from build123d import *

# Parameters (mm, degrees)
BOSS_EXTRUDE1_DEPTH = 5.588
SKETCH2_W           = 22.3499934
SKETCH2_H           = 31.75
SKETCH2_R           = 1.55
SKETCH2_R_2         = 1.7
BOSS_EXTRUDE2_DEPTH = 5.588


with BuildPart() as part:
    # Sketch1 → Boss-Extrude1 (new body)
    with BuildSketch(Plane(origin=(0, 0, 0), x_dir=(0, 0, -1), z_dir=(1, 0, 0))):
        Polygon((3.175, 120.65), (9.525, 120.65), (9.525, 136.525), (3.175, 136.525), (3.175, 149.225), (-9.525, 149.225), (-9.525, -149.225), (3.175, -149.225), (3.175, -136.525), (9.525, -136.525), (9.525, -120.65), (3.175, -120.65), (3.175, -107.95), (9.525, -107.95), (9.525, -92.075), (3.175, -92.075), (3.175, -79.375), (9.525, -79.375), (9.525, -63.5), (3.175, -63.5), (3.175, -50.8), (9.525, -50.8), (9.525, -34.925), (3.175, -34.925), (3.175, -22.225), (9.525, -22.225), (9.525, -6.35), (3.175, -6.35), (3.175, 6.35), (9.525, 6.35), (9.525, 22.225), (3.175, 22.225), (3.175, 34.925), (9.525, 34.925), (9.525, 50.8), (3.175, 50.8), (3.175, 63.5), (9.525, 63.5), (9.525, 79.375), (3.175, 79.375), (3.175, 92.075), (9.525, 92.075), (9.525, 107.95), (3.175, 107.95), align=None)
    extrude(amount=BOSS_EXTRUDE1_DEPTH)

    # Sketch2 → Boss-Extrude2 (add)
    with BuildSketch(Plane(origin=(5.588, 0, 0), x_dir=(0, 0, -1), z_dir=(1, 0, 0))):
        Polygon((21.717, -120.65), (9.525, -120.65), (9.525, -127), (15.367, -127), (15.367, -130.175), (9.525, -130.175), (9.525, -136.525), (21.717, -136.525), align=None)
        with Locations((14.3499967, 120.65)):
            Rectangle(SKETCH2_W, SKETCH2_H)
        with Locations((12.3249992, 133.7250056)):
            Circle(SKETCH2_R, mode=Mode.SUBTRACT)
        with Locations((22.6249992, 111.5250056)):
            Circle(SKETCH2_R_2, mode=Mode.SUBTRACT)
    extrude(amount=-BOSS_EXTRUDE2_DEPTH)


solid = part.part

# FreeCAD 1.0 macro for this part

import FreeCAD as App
import Part
import Sketcher
Q = App.Units.Quantity

doc = App.newDocument("Part")
body = doc.addObject("PartDesign::Body", "Body")

sketch1 = doc.addObject("Sketcher::SketchObject", "Sketch")
body.addObject(sketch1)
sketch1.AttachmentSupport = (doc.YZ_Plane, [""])
sketch1.MapMode = "FlatFace"
sketch1.addGeometry([
    Part.LineSegment(App.Vector(121, -3, 0), App.Vector(121, -10, 0)),
    Part.LineSegment(App.Vector(121, -10, 0), App.Vector(137, -10, 0)),
    Part.LineSegment(App.Vector(137, -10, 0), App.Vector(137, -3, 0)),
    Part.LineSegment(App.Vector(137, -3, 0), App.Vector(149, -3, 0)),
    Part.LineSegment(App.Vector(149, -3, 0), App.Vector(149, 10, 0)),
    Part.LineSegment(App.Vector(149, 10, 0), App.Vector(-149, 10, 0)),
    Part.LineSegment(App.Vector(-149, 10, 0), App.Vector(-149, -3, 0)),
    Part.LineSegment(App.Vector(-149, -3, 0), App.Vector(-137, -3, 0)),
    Part.LineSegment(App.Vector(-137, -3, 0), App.Vector(-137, -10, 0)),
    Part.LineSegment(App.Vector(-137, -10, 0), App.Vector(-121, -10, 0)),
    Part.LineSegment(App.Vector(-121, -10, 0), App.Vector(-121, -3, 0)),
    Part.LineSegment(App.Vector(-121, -3, 0), App.Vector(-108, -3, 0)),
    Part.LineSegment(App.Vector(-108, -3, 0), App.Vector(-108, -10, 0)),
    Part.LineSegment(App.Vector(-108, -10, 0), App.Vector(-92, -10, 0)),
    Part.LineSegment(App.Vector(-92, -10, 0), App.Vector(-92, -3, 0)),
    Part.LineSegment(App.Vector(-92, -3, 0), App.Vector(-79, -3, 0)),
    Part.LineSegment(App.Vector(-79, -3, 0), App.Vector(-79, -10, 0)),
    Part.LineSegment(App.Vector(-79, -10, 0), App.Vector(-64, -10, 0)),
    Part.LineSegment(App.Vector(-64, -10, 0), App.Vector(-64, -3, 0)),
    Part.LineSegment(App.Vector(-64, -3, 0), App.Vector(-51, -3, 0)),
    Part.LineSegment(App.Vector(-51, -3, 0), App.Vector(-51, -10, 0)),
    Part.LineSegment(App.Vector(-51, -10, 0), App.Vector(-35, -10, 0)),
    Part.LineSegment(App.Vector(-35, -10, 0), App.Vector(-35, -3, 0)),
    Part.LineSegment(App.Vector(-35, -3, 0), App.Vector(-22, -3, 0)),
    Part.LineSegment(App.Vector(-22, -3, 0), App.Vector(-22, -10, 0)),
    Part.LineSegment(App.Vector(-22, -10, 0), App.Vector(-6, -10, 0)),
    Part.LineSegment(App.Vector(-6, -10, 0), App.Vector(-6, -3, 0)),
    Part.LineSegment(App.Vector(-6, -3, 0), App.Vector(6, -3, 0)),
    Part.LineSegment(App.Vector(6, -3, 0), App.Vector(6, -10, 0)),
    Part.LineSegment(App.Vector(6, -10, 0), App.Vector(22, -10, 0)),
    Part.LineSegment(App.Vector(22, -10, 0), App.Vector(22, -3, 0)),
    Part.LineSegment(App.Vector(22, -3, 0), App.Vector(35, -3, 0)),
    Part.LineSegment(App.Vector(35, -3, 0), App.Vector(35, -10, 0)),
    Part.LineSegment(App.Vector(35, -10, 0), App.Vector(51, -10, 0)),
    Part.LineSegment(App.Vector(51, -10, 0), App.Vector(51, -3, 0)),
    Part.LineSegment(App.Vector(51, -3, 0), App.Vector(64, -3, 0)),
    Part.LineSegment(App.Vector(64, -3, 0), App.Vector(64, -10, 0)),
    Part.LineSegment(App.Vector(64, -10, 0), App.Vector(79, -10, 0)),
    Part.LineSegment(App.Vector(79, -10, 0), App.Vector(79, -3, 0)),
    Part.LineSegment(App.Vector(79, -3, 0), App.Vector(92, -3, 0)),
    Part.LineSegment(App.Vector(92, -3, 0), App.Vector(92, -10, 0)),
    Part.LineSegment(App.Vector(92, -10, 0), App.Vector(108, -10, 0)),
    Part.LineSegment(App.Vector(108, -10, 0), App.Vector(108, -3, 0)),
    Part.LineSegment(App.Vector(108, -3, 0), App.Vector(121, -3, 0)),
], False)
sketch1.addConstraint([
    Sketcher.Constraint("Coincident", 0, 2, 1, 1),
    Sketcher.Constraint("Coincident", 1, 2, 2, 1),
    Sketcher.Constraint("Coincident", 2, 2, 3, 1),
    Sketcher.Constraint("Coincident", 3, 2, 4, 1),
    Sketcher.Constraint("Coincident", 4, 2, 5, 1),
    Sketcher.Constraint("Coincident", 5, 2, 6, 1),
    Sketcher.Constraint("Coincident", 6, 2, 7, 1),
    Sketcher.Constraint("Coincident", 7, 2, 8, 1),
    Sketcher.Constraint("Coincident", 8, 2, 9, 1),
    Sketcher.Constraint("Coincident", 9, 2, 10, 1),
    Sketcher.Constraint("Coincident", 10, 2, 11, 1),
    Sketcher.Constraint("Coincident", 11, 2, 12, 1),
    Sketcher.Constraint("Coincident", 12, 2, 13, 1),
    Sketcher.Constraint("Coincident", 13, 2, 14, 1),
    Sketcher.Constraint("Coincident", 14, 2, 15, 1),
    Sketcher.Constraint("Coincident", 15, 2, 16, 1),
    Sketcher.Constraint("Coincident", 16, 2, 17, 1),
    Sketcher.Constraint("Coincident", 17, 2, 18, 1),
    Sketcher.Constraint("Coincident", 18, 2, 19, 1),
    Sketcher.Constraint("Coincident", 19, 2, 20, 1),
    Sketcher.Constraint("Coincident", 20, 2, 21, 1),
    Sketcher.Constraint("Coincident", 21, 2, 22, 1),
    Sketcher.Constraint("Coincident", 22, 2, 23, 1),
    Sketcher.Constraint("Coincident", 23, 2, 24, 1),
    Sketcher.Constraint("Coincident", 24, 2, 25, 1),
    Sketcher.Constraint("Coincident", 25, 2, 26, 1),
    Sketcher.Constraint("Coincident", 26, 2, 27, 1),
    Sketcher.Constraint("Coincident", 27, 2, 28, 1),
    Sketcher.Constraint("Coincident", 28, 2, 29, 1),
    Sketcher.Constraint("Coincident", 29, 2, 30, 1),
    Sketcher.Constraint("Coincident", 30, 2, 31, 1),
    Sketcher.Constraint("Coincident", 31, 2, 32, 1),
    Sketcher.Constraint("Coincident", 32, 2, 33, 1),
    Sketcher.Constraint("Coincident", 33, 2, 34, 1),
    Sketcher.Constraint("Coincident", 34, 2, 35, 1),
    Sketcher.Constraint("Coincident", 35, 2, 36, 1),
    Sketcher.Constraint("Coincident", 36, 2, 37, 1),
    Sketcher.Constraint("Coincident", 37, 2, 38, 1),
    Sketcher.Constraint("Coincident", 38, 2, 39, 1),
    Sketcher.Constraint("Coincident", 39, 2, 40, 1),
    Sketcher.Constraint("Coincident", 40, 2, 41, 1),
    Sketcher.Constraint("Coincident", 41, 2, 42, 1),
    Sketcher.Constraint("Coincident", 42, 2, 43, 1),
    Sketcher.Constraint("Coincident", 43, 2, 0, 1),
    Sketcher.Constraint("Vertical", 0),
    Sketcher.Constraint("Horizontal", 1),
    Sketcher.Constraint("Vertical", 2),
    Sketcher.Constraint("Horizontal", 3),
    Sketcher.Constraint("Vertical", 4),
    Sketcher.Constraint("Horizontal", 5),
    Sketcher.Constraint("Vertical", 6),
    Sketcher.Constraint("Horizontal", 7),
    Sketcher.Constraint("Vertical", 8),
    Sketcher.Constraint("Horizontal", 9),
    Sketcher.Constraint("Vertical", 10),
    Sketcher.Constraint("Horizontal", 11),
    Sketcher.Constraint("Vertical", 12),
    Sketcher.Constraint("Horizontal", 13),
    Sketcher.Constraint("Vertical", 14),
    Sketcher.Constraint("Horizontal", 15),
    Sketcher.Constraint("Vertical", 16),
    Sketcher.Constraint("Horizontal", 17),
    Sketcher.Constraint("Vertical", 18),
    Sketcher.Constraint("Horizontal", 19),
    Sketcher.Constraint("Vertical", 20),
    Sketcher.Constraint("Horizontal", 21),
    Sketcher.Constraint("Vertical", 22),
    Sketcher.Constraint("Horizontal", 23),
    Sketcher.Constraint("Vertical", 24),
    Sketcher.Constraint("Horizontal", 25),
    Sketcher.Constraint("Vertical", 26),
    Sketcher.Constraint("Horizontal", 27),
    Sketcher.Constraint("Vertical", 28),
    Sketcher.Constraint("Horizontal", 29),
    Sketcher.Constraint("Vertical", 30),
    Sketcher.Constraint("Horizontal", 31),
    Sketcher.Constraint("Vertical", 32),
    Sketcher.Constraint("Horizontal", 33),
    Sketcher.Constraint("Vertical", 34),
    Sketcher.Constraint("Horizontal", 35),
    Sketcher.Constraint("Vertical", 36),
    Sketcher.Constraint("Horizontal", 37),
    Sketcher.Constraint("Vertical", 38),
    Sketcher.Constraint("Horizontal", 39),
    Sketcher.Constraint("Vertical", 40),
    Sketcher.Constraint("Horizontal", 41),
    Sketcher.Constraint("Vertical", 42),
    Sketcher.Constraint("Horizontal", 43),
    Sketcher.Constraint("Symmetric", 3, 2, 6, 2, -2),
    Sketcher.Constraint("Symmetric", 1, 2, 8, 2, -2),
    Sketcher.Constraint("Symmetric", 25, 2, 28, 2, -2),
    Sketcher.Constraint("Symmetric", 23, 2, 30, 2, -2),
    Sketcher.Constraint("Symmetric", 21, 2, 32, 2, -2),
    Sketcher.Constraint("Symmetric", 19, 2, 34, 2, -2),
    Sketcher.Constraint("Symmetric", 17, 2, 36, 2, -2),
    Sketcher.Constraint("Symmetric", 15, 2, 38, 2, -2),
    Sketcher.Constraint("Symmetric", 13, 2, 40, 2, -2),
    Sketcher.Constraint("Symmetric", 11, 2, 42, 2, -2),
    Sketcher.Constraint("Horizontal", 7, 2, 10, 2),
    Sketcher.Constraint("Horizontal", 9, 2, 12, 2),
    Sketcher.Constraint("Horizontal", 11, 2, 14, 2),
    Sketcher.Constraint("Horizontal", 13, 2, 16, 2),
    Sketcher.Constraint("Horizontal", 15, 2, 18, 2),
    Sketcher.Constraint("Horizontal", 17, 2, 20, 2),
    Sketcher.Constraint("Horizontal", 19, 2, 22, 2),
    Sketcher.Constraint("Horizontal", 21, 2, 24, 2),
    Sketcher.Constraint("Horizontal", 23, 2, 26, 2),
    Sketcher.Constraint("Equal", 1, 9),
    Sketcher.Constraint("Equal", 7, 11),
    Sketcher.Constraint("Equal", 9, 13),
    Sketcher.Constraint("Equal", 11, 15),
    Sketcher.Constraint("Equal", 13, 17),
    Sketcher.Constraint("Equal", 15, 19),
    Sketcher.Constraint("Equal", 17, 21),
    Sketcher.Constraint("Equal", 19, 23),
    Sketcher.Constraint("Equal", 21, 25),
    Sketcher.Constraint("Equal", 23, 27),
    Sketcher.Constraint("Equal", 43, 4),
    Sketcher.Constraint("DistanceX", 3, 1, 3, 2, Q("0.5 in")),
    Sketcher.Constraint("DistanceX", 19, 2, -1, 1, Q("2 in")),
    Sketcher.Constraint("DistanceY", 0, 2, 0, 1, Q("0.25 in")),
    Sketcher.Constraint("DistanceY", 0, 2, -1, 1, Q("0.375 in")),
])
pad1 = doc.addObject("PartDesign::Pad", "Pad")
body.addObject(pad1)
pad1.Profile = sketch1
pad1.Length = Q("0.22 in")

sketch2 = doc.addObject("Sketcher::SketchObject", "Sketch001")
body.addObject(sketch2)
sketch2.AttachmentSupport = (doc.YZ_Plane, [""])
sketch2.MapMode = "FlatFace"
sketch2.AttachmentOffset = App.Placement(App.Vector(0, 0, 0.22 * 25.4), App.Rotation())
sketch2.addGeometry([
    Part.LineSegment(App.Vector(-120.7, -21.7, 0), App.Vector(-120.7, -9.5, 0)),
    Part.LineSegment(App.Vector(-120.7, -9.5, 0), App.Vector(-127, -9.5, 0)),
    Part.LineSegment(App.Vector(-127, -9.5, 0), App.Vector(-127, -15.4, 0)),
    Part.LineSegment(App.Vector(-127, -15.4, 0), App.Vector(-130.2, -15.4, 0)),
    Part.LineSegment(App.Vector(-130.2, -15.4, 0), App.Vector(-130.2, -9.5, 0)),
    Part.LineSegment(App.Vector(-130.2, -9.5, 0), App.Vector(-136.5, -9.5, 0)),
    Part.LineSegment(App.Vector(-136.5, -9.5, 0), App.Vector(-136.5, -21.7, 0)),
    Part.LineSegment(App.Vector(-136.5, -21.7, 0), App.Vector(-120.7, -21.7, 0)),
    Part.LineSegment(App.Vector(136.5, -3.2, 0), App.Vector(104.8, -3.2, 0)),
    Part.LineSegment(App.Vector(104.8, -3.2, 0), App.Vector(104.8, -25.5, 0)),
    Part.LineSegment(App.Vector(104.8, -25.5, 0), App.Vector(136.5, -25.5, 0)),
    Part.LineSegment(App.Vector(136.5, -25.5, 0), App.Vector(136.5, -3.2, 0)),
    Part.Circle(App.Vector(111.5, -22.6, 0), App.Vector(0, 0, 1), 1.7),
    Part.Circle(App.Vector(133.7, -12.3, 0), App.Vector(0, 0, 1), 1.6),
], False)
sketch2.addConstraint([
    Sketcher.Constraint("Coincident", 0, 2, 1, 1),
    Sketcher.Constraint("Coincident", 1, 2, 2, 1),
    Sketcher.Constraint("Coincident", 2, 2, 3, 1),
    Sketcher.Constraint("Coincident", 3, 2, 4, 1),
    Sketcher.Constraint("Coincident", 4, 2, 5, 1),
    Sketcher.Constraint("Coincident", 5, 2, 6, 1),
    Sketcher.Constraint("Coincident", 6, 2, 7, 1),
    Sketcher.Constraint("Coincident", 7, 2, 0, 1),
    Sketcher.Constraint("Coincident", 8, 2, 9, 1),
    Sketcher.Constraint("Coincident", 9, 2, 10, 1),
    Sketcher.Constraint("Coincident", 10, 2, 11, 1),
    Sketcher.Constraint("Coincident", 11, 2, 8, 1),
    Sketcher.Constraint("Vertical", 0),
    Sketcher.Constraint("Horizontal", 1),
    Sketcher.Constraint("Vertical", 2),
    Sketcher.Constraint("Horizontal", 3),
    Sketcher.Constraint("Vertical", 4),
    Sketcher.Constraint("Horizontal", 5),
    Sketcher.Constraint("Vertical", 6),
    Sketcher.Constraint("Horizontal", 7),
    Sketcher.Constraint("Horizontal", 8),
    Sketcher.Constraint("Vertical", 9),
    Sketcher.Constraint("Horizontal", 10),
    Sketcher.Constraint("Vertical", 11),
    Sketcher.Constraint("Horizontal", 1, 2, 4, 2),
    Sketcher.Constraint("Equal", 1, 5),
    Sketcher.Constraint("DistanceX", 1, 2, -1, 1, Q("5 in")),
    Sketcher.Constraint("DistanceX", 1, 2, 1, 1, Q("0.25 in")),
    Sketcher.Constraint("DistanceX", 8, 2, 8, 1, Q("1.25 in")),
    Sketcher.Constraint("DistanceY", 0, 1, 0, 2, Q("0.48 in")),
    Sketcher.Constraint("DistanceY", 2, 2, 2, 1, Q("0.23 in")),
    Sketcher.Constraint("Diameter", 12, Q("3.4 mm")),
    Sketcher.Constraint("Diameter", 13, Q("3.1 mm")),
    Sketcher.Constraint("DistanceX", 3, 2, 3, 1, Q("0.125 in")),
    Sketcher.Constraint("DistanceY", 0, 2, 8, 2, Q("0.25 in")),
    Sketcher.Constraint("DistanceY", 0, 2, -1, 1, Q("0.375 in")),
    Sketcher.Constraint("DistanceX", -1, 1, 8, 2, Q("4.125 in")),
    Sketcher.Constraint("DistanceY", 12, 3, -1, 1, Q("22.624999 mm")),
    Sketcher.Constraint("DistanceY", 13, 3, -1, 1, Q("12.324999 mm")),
    Sketcher.Constraint("DistanceX", 12, 3, 13, 3, Q("22.2 mm")),
    Sketcher.Constraint("DistanceY", 9, 2, 9, 1, Q("22.349993 mm")),
    Sketcher.Constraint("DistanceX", -1, 1, 12, 3, Q("111.525006 mm")),
])
pad2 = doc.addObject("PartDesign::Pad", "Pad001")
body.addObject(pad2)
pad2.Profile = sketch2
pad2.Length = Q("0.22 in")
pad2.Reversed = True

doc.recompute()
